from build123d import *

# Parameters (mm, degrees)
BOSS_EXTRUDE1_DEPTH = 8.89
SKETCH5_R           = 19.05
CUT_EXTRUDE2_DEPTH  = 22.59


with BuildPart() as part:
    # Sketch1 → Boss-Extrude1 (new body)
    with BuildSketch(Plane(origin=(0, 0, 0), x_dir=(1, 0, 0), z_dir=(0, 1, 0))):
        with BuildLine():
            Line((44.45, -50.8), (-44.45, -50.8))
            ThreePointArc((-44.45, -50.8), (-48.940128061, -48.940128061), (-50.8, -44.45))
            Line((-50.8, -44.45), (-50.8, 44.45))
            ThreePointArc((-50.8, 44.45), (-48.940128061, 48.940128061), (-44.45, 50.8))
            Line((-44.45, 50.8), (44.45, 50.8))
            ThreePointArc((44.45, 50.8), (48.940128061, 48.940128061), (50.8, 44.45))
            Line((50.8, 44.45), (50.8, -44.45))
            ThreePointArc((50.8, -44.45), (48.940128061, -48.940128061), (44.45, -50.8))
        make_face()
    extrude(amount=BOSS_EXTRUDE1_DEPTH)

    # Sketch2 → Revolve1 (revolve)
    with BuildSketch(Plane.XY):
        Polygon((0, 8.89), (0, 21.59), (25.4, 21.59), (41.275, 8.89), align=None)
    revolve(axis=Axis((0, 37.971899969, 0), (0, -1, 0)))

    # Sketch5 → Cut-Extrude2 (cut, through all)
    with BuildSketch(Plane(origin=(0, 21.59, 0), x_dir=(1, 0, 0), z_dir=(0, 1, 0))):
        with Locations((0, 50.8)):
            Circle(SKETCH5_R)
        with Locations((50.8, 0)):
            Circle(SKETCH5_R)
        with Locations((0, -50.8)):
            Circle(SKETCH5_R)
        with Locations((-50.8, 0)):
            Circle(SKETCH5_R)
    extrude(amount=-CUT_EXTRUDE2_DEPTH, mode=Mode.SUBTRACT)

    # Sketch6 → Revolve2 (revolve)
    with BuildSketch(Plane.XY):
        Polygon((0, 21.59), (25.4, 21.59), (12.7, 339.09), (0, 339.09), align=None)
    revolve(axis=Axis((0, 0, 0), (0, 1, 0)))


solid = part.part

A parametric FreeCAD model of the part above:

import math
import FreeCAD as App
import Part
import Sketcher
Q = App.Units.Quantity

doc = App.newDocument("Part")
body = doc.addObject("PartDesign::Body", "Body")

sketch1 = body.newObject("Sketcher::SketchObject", "Sketch")
sketch1.AttachmentSupport = (doc.getObject("XZ_Plane"), [""])
sketch1.MapMode = "FlatFace"
sketch1.addGeometry(Part.LineSegment(App.Vector(-44, 51, 0), App.Vector(44, 51, 0)), False)
sketch1.addGeometry(Part.ArcOfCircle(Part.Circle(App.Vector(44, 44, 0), App.Vector(0, 0, 1), 6), math.radians(0), math.radians(90)), False)
sketch1.addGeometry(Part.LineSegment(App.Vector(51, 44, 0), App.Vector(51, -44, 0)), False)
sketch1.addGeometry(Part.ArcOfCircle(Part.Circle(App.Vector(44, -44, 0), App.Vector(0, 0, 1), 6), math.radians(-90), math.radians(0)), False)
sketch1.addGeometry(Part.LineSegment(App.Vector(44, -51, 0), App.Vector(-44, -51, 0)), False)
sketch1.addGeometry(Part.ArcOfCircle(Part.Circle(App.Vector(-44, -44, 0), App.Vector(0, 0, 1), 6), math.radians(180), math.radians(270)), False)
sketch1.addGeometry(Part.LineSegment(App.Vector(-51, -44, 0), App.Vector(-51, 44, 0)), False)
sketch1.addGeometry(Part.ArcOfCircle(Part.Circle(App.Vector(-44, 44, 0), App.Vector(0, 0, 1), 6), math.radians(90), math.radians(180)), False)
sketch1.addConstraint(Sketcher.Constraint("Tangent", 0, 2, 1, 2))
sketch1.addConstraint(Sketcher.Constraint("Tangent", 1, 1, 2, 1))
sketch1.addConstraint(Sketcher.Constraint("Tangent", 2, 2, 3, 2))
sketch1.addConstraint(Sketcher.Constraint("Tangent", 3, 1, 4, 1))
sketch1.addConstraint(Sketcher.Constraint("Tangent", 4, 2, 5, 2))
sketch1.addConstraint(Sketcher.Constraint("Tangent", 5, 1, 6, 1))
sketch1.addConstraint(Sketcher.Constraint("Tangent", 6, 2, 7, 2))
sketch1.addConstraint(Sketcher.Constraint("Tangent", 7, 1, 0, 1))
sketch1.addConstraint(Sketcher.Constraint("Horizontal", 0))
sketch1.addConstraint(Sketcher.Constraint("Vertical", 2))
sketch1.addConstraint(Sketcher.Constraint("Horizontal", 4))
sketch1.addConstraint(Sketcher.Constraint("Vertical", 6))
sketch1.addConstraint(Sketcher.Constraint("Equal", 1, 3))
sketch1.addConstraint(Sketcher.Constraint("Equal", 3, 5))
sketch1.addConstraint(Sketcher.Constraint("Equal", 5, 7))
sketch1.addConstraint(Sketcher.Constraint("Symmetric", 1, 3, 5, 3, -1, 1))
sketch1.addConstraint(Sketcher.Constraint("Equal", 4, 2))
sketch1.addConstraint(Sketcher.Constraint("Radius", 1, Q("0.25 in")))
sketch1.addConstraint(Sketcher.Constraint("DistanceX", 0, 1, 0, 2, Q("3.5 in")))
pad1 = body.newObject("PartDesign::Pad", "Pad")
pad1.Profile = sketch1
pad1.Length = Q("0.35 in")
pad1.Reversed = True

sketch2 = body.newObject("Sketcher::SketchObject", "Sketch001")
sketch2.AttachmentSupport = (doc.getObject("XY_Plane"), [""])
sketch2.MapMode = "FlatFace"
sketch2.addGeometry(Part.LineSegment(App.Vector(0, 22, 0), App.Vector(0, 9, 0)), False)
sketch2.addGeometry(Part.LineSegment(App.Vector(0, 9, 0), App.Vector(41, 9, 0)), False)
sketch2.addGeometry(Part.LineSegment(App.Vector(41, 9, 0), App.Vector(25, 22, 0)), False)
sketch2.addGeometry(Part.LineSegment(App.Vector(25, 22, 0), App.Vector(0, 22, 0)), False)
sketch2.addConstraint(Sketcher.Constraint("Coincident", 0, 2, 1, 1))
sketch2.addConstraint(Sketcher.Constraint("Coincident", 1, 2, 2, 1))
sketch2.addConstraint(Sketcher.Constraint("Coincident", 2, 2, 3, 1))
sketch2.addConstraint(Sketcher.Constraint("Coincident", 3, 2, 0, 1))
sketch2.addConstraint(Sketcher.Constraint("Vertical", 0))
sketch2.addConstraint(Sketcher.Constraint("Horizontal", 1))
sketch2.addConstraint(Sketcher.Constraint("Horizontal", 3))
sketch2.addConstraint(Sketcher.Constraint("PointOnObject", 0, 2, -2))
sketch2.addConstraint(Sketcher.Constraint("DistanceX", 3, 2, 3, 1, Q("1 in")))
sketch2.addConstraint(Sketcher.Constraint("DistanceY", 0, 2, 0, 1, Q("0.5 in")))
sketch2.addConstraint(Sketcher.Constraint("DistanceX", 1, 1, 1, 2, Q("1.625 in")))
sketch2.addConstraint(Sketcher.Constraint("DistanceY", -1, 1, 0, 2, Q("0.35 in")))
revolution = body.newObject("PartDesign::Revolution", "Revolution")
revolution.Profile = sketch2
revolution.ReferenceAxis = (sketch2, ["V_Axis"])
revolution.Angle = 360

sketch3 = body.newObject("Sketcher::SketchObject", "Sketch002")
sketch3.AttachmentSupport = (doc.getObject("XZ_Plane"), [""])
sketch3.MapMode = "FlatFace"
sketch3.AttachmentOffset = App.Placement(App.Vector(0, 0, -0.85 * 25.4), App.Rotation())
sketch3.addGeometry(Part.Circle(App.Vector(0, -51, 0), App.Vector(0, 0, 1), 19), False)
sketch3.addGeometry(Part.Circle(App.Vector(51, 0, 0), App.Vector(0, 0, 1), 19), False)
sketch3.addGeometry(Part.Circle(App.Vector(0, 51, 0), App.Vector(0, 0, 1), 19), False)
sketch3.addGeometry(Part.Circle(App.Vector(-51, 0, 0), App.Vector(0, 0, 1), 19), False)
sketch3.addConstraint(Sketcher.Constraint("Equal", 0, 1))
sketch3.addConstraint(Sketcher.Constraint("Equal", 1, 2))
sketch3.addConstraint(Sketcher.Constraint("Equal", 2, 3))
sketch3.addConstraint(Sketcher.Constraint("Symmetric", 0, 3, 2, 3, -1, 1))
sketch3.addConstraint(Sketcher.Constraint("Symmetric", 1, 3, 3, 3, -1, 1))
sketch3.addConstraint(Sketcher.Constraint("PointOnObject", 0, 3, -2))
sketch3.addConstraint(Sketcher.Constraint("PointOnObject", 1, 3, -1))
sketch3.addConstraint(Sketcher.Constraint("Diameter", 0, Q("1.5 in")))
sketch3.addConstraint(Sketcher.Constraint("DistanceY", 0, 3, -1, 1, Q("2 in")))
sketch3.addConstraint(Sketcher.Constraint("DistanceX", -1, 1, 1, 3, Q("2 in")))
pocket1 = body.newObject("PartDesign::Pocket", "Pocket")
pocket1.Profile = sketch3
pocket1.Type = "ThroughAll"
pocket1.Reversed = True

sketch4 = body.newObject("Sketcher::SketchObject", "Sketch003")
sketch4.AttachmentSupport = (doc.getObject("XY_Plane"), [""])
sketch4.MapMode = "FlatFace"
sketch4.addGeometry(Part.LineSegment(App.Vector(0, 22, 0), App.Vector(25, 22, 0)), False)
sketch4.addGeometry(Part.LineSegment(App.Vector(25, 22, 0), App.Vector(13, 339, 0)), False)
sketch4.addGeometry(Part.LineSegment(App.Vector(13, 339, 0), App.Vector(0, 339, 0)), False)
sketch4.addGeometry(Part.LineSegment(App.Vector(0, 339, 0), App.Vector(0, 22, 0)), False)
sketch4.addConstraint(Sketcher.Constraint("Coincident", 0, 2, 1, 1))
sketch4.addConstraint(Sketcher.Constraint("Coincident", 1, 2, 2, 1))
sketch4.addConstraint(Sketcher.Constraint("Coincident", 2, 2, 3, 1))
sketch4.addConstraint(Sketcher.Constraint("Coincident", 3, 2, 0, 1))
sketch4.addConstraint(Sketcher.Constraint("Horizontal", 0))
sketch4.addConstraint(Sketcher.Constraint("Horizontal", 2))
sketch4.addConstraint(Sketcher.Constraint("Vertical", 3))
sketch4.addConstraint(Sketcher.Constraint("PointOnObject", 2, 2, -2))
sketch4.addConstraint(Sketcher.Constraint("DistanceX", 0, 1, 0, 2, Q("1 in")))
sketch4.addConstraint(Sketcher.Constraint("DistanceX", 2, 2, 2, 1, Q("0.5 in")))
sketch4.addConstraint(Sketcher.Constraint("DistanceY", 3, 2, 3, 1, Q("12.5 in")))
sketch4.addConstraint(Sketcher.Constraint("DistanceY", -1, 1, 0, 2, Q("0.85 in")))
revolution2 = body.newObject("PartDesign::Revolution", "Revolution001")
revolution2.Profile = sketch4
revolution2.ReferenceAxis = (sketch4, ["V_Axis"])
revolution2.Angle = 360

doc.recompute()
